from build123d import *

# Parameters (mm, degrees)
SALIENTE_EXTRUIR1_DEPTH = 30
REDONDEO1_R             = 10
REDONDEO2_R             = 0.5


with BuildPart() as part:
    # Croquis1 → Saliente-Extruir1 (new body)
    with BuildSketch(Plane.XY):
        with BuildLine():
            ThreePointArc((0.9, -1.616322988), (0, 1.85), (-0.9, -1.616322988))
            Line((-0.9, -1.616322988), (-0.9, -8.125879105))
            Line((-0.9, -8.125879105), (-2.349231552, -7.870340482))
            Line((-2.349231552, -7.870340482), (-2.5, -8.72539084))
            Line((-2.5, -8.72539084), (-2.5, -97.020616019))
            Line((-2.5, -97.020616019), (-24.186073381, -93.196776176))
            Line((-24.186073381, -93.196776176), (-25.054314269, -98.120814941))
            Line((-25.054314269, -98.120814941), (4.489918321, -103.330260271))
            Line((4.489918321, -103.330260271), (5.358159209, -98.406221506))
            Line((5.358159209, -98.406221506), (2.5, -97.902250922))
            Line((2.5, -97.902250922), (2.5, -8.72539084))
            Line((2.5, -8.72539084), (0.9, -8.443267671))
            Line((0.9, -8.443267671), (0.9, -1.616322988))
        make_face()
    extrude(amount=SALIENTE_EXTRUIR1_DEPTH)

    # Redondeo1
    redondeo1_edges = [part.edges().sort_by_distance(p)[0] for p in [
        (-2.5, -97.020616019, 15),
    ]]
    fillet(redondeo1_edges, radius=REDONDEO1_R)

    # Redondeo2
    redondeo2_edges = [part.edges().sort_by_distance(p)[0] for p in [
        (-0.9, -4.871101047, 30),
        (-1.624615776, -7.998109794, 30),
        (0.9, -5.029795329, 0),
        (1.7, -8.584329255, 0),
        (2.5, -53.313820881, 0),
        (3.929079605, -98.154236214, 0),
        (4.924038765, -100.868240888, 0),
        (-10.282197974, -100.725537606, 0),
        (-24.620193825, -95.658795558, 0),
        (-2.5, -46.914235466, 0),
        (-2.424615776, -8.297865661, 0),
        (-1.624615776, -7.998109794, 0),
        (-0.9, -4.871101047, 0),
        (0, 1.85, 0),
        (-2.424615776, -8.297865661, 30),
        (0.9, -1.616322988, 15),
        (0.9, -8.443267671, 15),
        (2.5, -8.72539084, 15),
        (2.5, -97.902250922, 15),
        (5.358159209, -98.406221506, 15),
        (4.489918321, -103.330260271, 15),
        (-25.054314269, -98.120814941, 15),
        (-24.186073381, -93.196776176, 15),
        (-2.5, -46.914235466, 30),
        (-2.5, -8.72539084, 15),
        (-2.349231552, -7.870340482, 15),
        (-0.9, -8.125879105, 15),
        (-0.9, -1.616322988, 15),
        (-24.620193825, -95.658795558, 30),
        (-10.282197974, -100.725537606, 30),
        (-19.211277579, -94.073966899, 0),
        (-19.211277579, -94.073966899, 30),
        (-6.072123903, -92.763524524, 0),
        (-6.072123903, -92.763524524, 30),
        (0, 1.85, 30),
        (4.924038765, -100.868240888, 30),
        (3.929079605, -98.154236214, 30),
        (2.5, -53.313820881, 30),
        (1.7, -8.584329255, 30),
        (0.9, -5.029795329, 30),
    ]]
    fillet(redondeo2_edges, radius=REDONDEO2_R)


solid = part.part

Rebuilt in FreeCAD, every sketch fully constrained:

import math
import FreeCAD as App
import Part
import Sketcher
Q = App.Units.Quantity


def edges_at(feature, points):
    """Names of the edges that pass closest to the given points."""
    edges = feature.Shape.Edges
    near = lambda p: min(range(len(edges)), key=lambda i: edges[i].distToShape(Part.Vertex(*p))[0])
    return sorted({f"Edge{near(p) + 1}" for p in points})

doc = App.newDocument("Part")
body = doc.addObject("PartDesign::Body", "Body")

# Sketch on XY plane
sketch1 = body.newObject("Sketcher::SketchObject", "Sketch")
sketch1.AttachmentSupport = (doc.getObject("XY_Plane"), [""])
sketch1.MapMode = "FlatFace"
sketch1.addGeometry(Part.ArcOfCircle(Part.Circle(App.Vector(0, 0, 0), App.Vector(0, 0, 1), 1.85), math.radians(-60.890091), math.radians(240.890091)), False)
sketch1.addGeometry(Part.LineSegment(App.Vector(-0.9, -1.616323, 0), App.Vector(-0.9, -8.125879, 0)), False)
sketch1.addGeometry(Part.LineSegment(App.Vector(-0.9, -8.125879, 0), App.Vector(-2.349232, -7.87034, 0)), False)
sketch1.addGeometry(Part.LineSegment(App.Vector(-2.349232, -7.87034, 0), App.Vector(-2.5, -8.725391, 0)), False)
sketch1.addGeometry(Part.LineSegment(App.Vector(-2.5, -8.725391, 0), App.Vector(-2.5, -97.020616, 0)), False)
sketch1.addGeometry(Part.LineSegment(App.Vector(-2.5, -97.020616, 0), App.Vector(-24.186073, -93.196776, 0)), False)
sketch1.addGeometry(Part.LineSegment(App.Vector(-24.186073, -93.196776, 0), App.Vector(-25.054314, -98.120815, 0)), False)
sketch1.addGeometry(Part.LineSegment(App.Vector(-25.054314, -98.120815, 0), App.Vector(4.489918, -103.33026, 0)), False)
sketch1.addGeometry(Part.LineSegment(App.Vector(4.489918, -103.33026, 0), App.Vector(5.358159, -98.406222, 0)), False)
sketch1.addGeometry(Part.LineSegment(App.Vector(5.358159, -98.406222, 0), App.Vector(2.5, -97.902251, 0)), False)
sketch1.addGeometry(Part.LineSegment(App.Vector(2.5, -97.902251, 0), App.Vector(2.5, -8.725391, 0)), False)
sketch1.addGeometry(Part.LineSegment(App.Vector(2.5, -8.725391, 0), App.Vector(0.9, -8.443268, 0)), False)
sketch1.addGeometry(Part.LineSegment(App.Vector(0.9, -8.443268, 0), App.Vector(0.9, -1.616323, 0)), False)
sketch1.addConstraint(Sketcher.Constraint("Coincident", 0, 2, 1, 1))
sketch1.addConstraint(Sketcher.Constraint("Coincident", 1, 2, 2, 1))
sketch1.addConstraint(Sketcher.Constraint("Coincident", 2, 2, 3, 1))
sketch1.addConstraint(Sketcher.Constraint("Coincident", 3, 2, 4, 1))
sketch1.addConstraint(Sketcher.Constraint("Coincident", 4, 2, 5, 1))
sketch1.addConstraint(Sketcher.Constraint("Coincident", 5, 2, 6, 1))
sketch1.addConstraint(Sketcher.Constraint("Coincident", 6, 2, 7, 1))
sketch1.addConstraint(Sketcher.Constraint("Coincident", 7, 2, 8, 1))
sketch1.addConstraint(Sketcher.Constraint("Coincident", 8, 2, 9, 1))
sketch1.addConstraint(Sketcher.Constraint("Coincident", 9, 2, 10, 1))
sketch1.addConstraint(Sketcher.Constraint("Coincident", 10, 2, 11, 1))
sketch1.addConstraint(Sketcher.Constraint("Coincident", 11, 2, 12, 1))
sketch1.addConstraint(Sketcher.Constraint("Coincident", 12, 2, 0, 1))
sketch1.addConstraint(Sketcher.Constraint("Vertical", 1))
sketch1.addConstraint(Sketcher.Constraint("Vertical", 4))
sketch1.addConstraint(Sketcher.Constraint("Vertical", 10))
sketch1.addConstraint(Sketcher.Constraint("Vertical", 12))
sketch1.addConstraint(Sketcher.Constraint("Coincident", 0, 3, -1, 1))
sketch1.addConstraint(Sketcher.Constraint("Symmetric", 3, 2, 10, 2, -2))
sketch1.addConstraint(Sketcher.Constraint("Perpendicular", 2, 3))
sketch1.addConstraint(Sketcher.Constraint("Perpendicular", 3, 5))
sketch1.addConstraint(Sketcher.Constraint("Perpendicular", 5, 6))
sketch1.addConstraint(Sketcher.Constraint("Perpendicular", 6, 7))
sketch1.addConstraint(Sketcher.Constraint("Perpendicular", 7, 8))
sketch1.addConstraint(Sketcher.Constraint("Perpendicular", 8, 9))
sketch1.addConstraint(Sketcher.Constraint("Parallel", 9, 11))
sketch1.addConstraint(Sketcher.Constraint("Horizontal", 0, 2, 12, 2))
sketch1.addConstraint(Sketcher.Constraint("Equal", 6, 8))
sketch1.addConstraint(Sketcher.Constraint("Angle", 2, Q("170 deg")))
sketch1.addConstraint(Sketcher.Constraint("Radius", 0, 1.85))
sketch1.addConstraint(Sketcher.Constraint("Distance", 6, 5.0))
sketch1.addConstraint(Sketcher.Constraint("Distance", 7, 30.0))
sketch1.addConstraint(Sketcher.Constraint("DistanceX", 4, 2, 9, 2, 5.0))
sketch1.addConstraint(Sketcher.Constraint("DistanceX", 0, 2, -1, 1, 0.9))
sketch1.addConstraint(Sketcher.Constraint("DistanceY", 10, 1, 10, 2, 89.17686))
sketch1.addConstraint(Sketcher.Constraint("DistanceY", 6, 2, 4, 2, 1.100199))
sketch1.addConstraint(Sketcher.Constraint("Distance", 2, 1.471588))
sketch1.addConstraint(Sketcher.Constraint("DistanceY", 1, 2, 1, 1, 6.509556))
pad1 = body.newObject("PartDesign::Pad", "Pad")
pad1.Profile = sketch1
pad1.Length = 30
doc.recompute()

fillet = body.newObject("PartDesign::Fillet", "Fillet")
fillet.Base = (pad1, edges_at(pad1, [(-2.5, -97.021, 15)]))
fillet.Radius = 10
doc.recompute()

fillet2 = body.newObject("PartDesign::Fillet", "Fillet001")
fillet2.Base = (fillet, ["Edge1"])
fillet2.UseAllEdges = True
fillet2.Radius = 0.5

doc.recompute()
